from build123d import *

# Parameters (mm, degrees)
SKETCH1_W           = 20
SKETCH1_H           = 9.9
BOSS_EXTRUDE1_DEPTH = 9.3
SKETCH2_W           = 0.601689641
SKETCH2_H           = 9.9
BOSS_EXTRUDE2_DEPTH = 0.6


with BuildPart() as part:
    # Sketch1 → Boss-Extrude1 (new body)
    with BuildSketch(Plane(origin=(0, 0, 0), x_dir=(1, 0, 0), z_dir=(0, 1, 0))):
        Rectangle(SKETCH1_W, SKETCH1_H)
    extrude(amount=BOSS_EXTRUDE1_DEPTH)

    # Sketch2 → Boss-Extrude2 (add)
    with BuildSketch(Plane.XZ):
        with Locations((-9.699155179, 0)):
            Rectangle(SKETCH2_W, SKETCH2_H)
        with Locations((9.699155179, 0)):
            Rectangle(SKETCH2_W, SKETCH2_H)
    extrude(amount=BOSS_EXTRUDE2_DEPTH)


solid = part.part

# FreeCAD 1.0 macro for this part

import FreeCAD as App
import Part
import Sketcher

V = App.Vector
Q = App.Units.Quantity


def add_polygon(sketch, points):
    """Adds a closed chain of lines whose ends are joined by coincident constraints."""
    first, n = sketch.GeometryCount, len(points)
    for a, b in zip(points, points[1:] + points[:1]):
        sketch.addGeometry(Part.LineSegment(App.Vector(*a, 0), App.Vector(*b, 0)), False)
    for i in range(n):
        sketch.addConstraint(Sketcher.Constraint("Coincident", first + i, 2, first + (i + 1) % n, 1))

doc = App.newDocument("Part")
params = doc.addObject("Spreadsheet::Sheet", "Params")
for row, (alias, value) in enumerate([
    ("sketch1_width", "20 mm"),
    ("sketch1_height", "9.9 mm"),
    ("pad1_length", "9.3 mm"),
    ("sketch2_height", "9.9 mm"),
    ("pad2_length", "0.6 mm"),
], start=1):
    params.set(f"A{row}", alias)
    params.set(f"B{row}", "=" + value)
    params.setAlias(f"B{row}", alias)

body = doc.addObject("PartDesign::Body", "Body")

sketch1 = doc.addObject("Sketcher::SketchObject", "Sketch")
body.addObject(sketch1)
sketch1.AttachmentSupport = (doc.XZ_Plane, [""])
sketch1.MapMode = "FlatFace"
add_polygon(sketch1, [(-10, -5), (-10, 5), (10, 5), (10, -5)])
sketch1.addConstraint(Sketcher.Constraint("Vertical", 0))
sketch1.addConstraint(Sketcher.Constraint("Horizontal", 1))
sketch1.addConstraint(Sketcher.Constraint("Vertical", 2))
sketch1.addConstraint(Sketcher.Constraint("Horizontal", 3))
sketch1.addConstraint(Sketcher.Constraint("Symmetric", 0, 2, 2, 2, -1, 1))
sketch1.addConstraint(Sketcher.Constraint("DistanceX", 1, 1, 1, 2, Q("20 mm")))
sketch1.addConstraint(Sketcher.Constraint("DistanceY", 0, 1, 0, 2, Q("9.9 mm")))
sketch1.setExpression("Constraints[9]", "Params.sketch1_width")
sketch1.setExpression("Constraints[10]", "Params.sketch1_height")
pad1 = doc.addObject("PartDesign::Pad", "Pad")
body.addObject(pad1)
pad1.Profile = sketch1
pad1.setExpression("Length", "Params.pad1_length")
pad1.Reversed = True

sketch2 = doc.addObject("Sketcher::SketchObject", "Sketch001")
body.addObject(sketch2)
sketch2.AttachmentSupport = (doc.XZ_Plane, [""])
sketch2.MapMode = "FlatFace"
add_polygon(sketch2, [(-10, 5), (-10, -5), (-9.4, -5), (-9.4, 5)])
add_polygon(sketch2, [(9.4, 5), (9.4, -5), (10, -5), (10, 5)])
sketch2.addConstraint(Sketcher.Constraint("Vertical", 0))
sketch2.addConstraint(Sketcher.Constraint("Horizontal", 1))
sketch2.addConstraint(Sketcher.Constraint("Vertical", 2))
sketch2.addConstraint(Sketcher.Constraint("Horizontal", 3))
sketch2.addConstraint(Sketcher.Constraint("Vertical", 4))
sketch2.addConstraint(Sketcher.Constraint("Horizontal", 5))
sketch2.addConstraint(Sketcher.Constraint("Vertical", 6))
sketch2.addConstraint(Sketcher.Constraint("Horizontal", 7))
sketch2.addConstraint(Sketcher.Constraint("Symmetric", 2, 2, 4, 2, -1, 1))
sketch2.addConstraint(Sketcher.Constraint("Symmetric", 0, 2, 6, 2, -1, 1))
sketch2.addConstraint(Sketcher.Constraint("Horizontal", 1, 2, 4, 2))
sketch2.addConstraint(Sketcher.Constraint("DistanceY", 0, 2, 0, 1, Q("9.9 mm")))
sketch2.addConstraint(Sketcher.Constraint("DistanceX", 0, 2, -1, 1, Q("10 mm")))
sketch2.addConstraint(Sketcher.Constraint("DistanceX", 1, 1, 1, 2, Q("0.60169 mm")))
sketch2.setExpression("Constraints[19]", "Params.sketch2_height")
pad2 = doc.addObject("PartDesign::Pad", "Pad001")
body.addObject(pad2)
pad2.Profile = sketch2
pad2.setExpression("Length", "Params.pad2_length")

doc.recompute()
